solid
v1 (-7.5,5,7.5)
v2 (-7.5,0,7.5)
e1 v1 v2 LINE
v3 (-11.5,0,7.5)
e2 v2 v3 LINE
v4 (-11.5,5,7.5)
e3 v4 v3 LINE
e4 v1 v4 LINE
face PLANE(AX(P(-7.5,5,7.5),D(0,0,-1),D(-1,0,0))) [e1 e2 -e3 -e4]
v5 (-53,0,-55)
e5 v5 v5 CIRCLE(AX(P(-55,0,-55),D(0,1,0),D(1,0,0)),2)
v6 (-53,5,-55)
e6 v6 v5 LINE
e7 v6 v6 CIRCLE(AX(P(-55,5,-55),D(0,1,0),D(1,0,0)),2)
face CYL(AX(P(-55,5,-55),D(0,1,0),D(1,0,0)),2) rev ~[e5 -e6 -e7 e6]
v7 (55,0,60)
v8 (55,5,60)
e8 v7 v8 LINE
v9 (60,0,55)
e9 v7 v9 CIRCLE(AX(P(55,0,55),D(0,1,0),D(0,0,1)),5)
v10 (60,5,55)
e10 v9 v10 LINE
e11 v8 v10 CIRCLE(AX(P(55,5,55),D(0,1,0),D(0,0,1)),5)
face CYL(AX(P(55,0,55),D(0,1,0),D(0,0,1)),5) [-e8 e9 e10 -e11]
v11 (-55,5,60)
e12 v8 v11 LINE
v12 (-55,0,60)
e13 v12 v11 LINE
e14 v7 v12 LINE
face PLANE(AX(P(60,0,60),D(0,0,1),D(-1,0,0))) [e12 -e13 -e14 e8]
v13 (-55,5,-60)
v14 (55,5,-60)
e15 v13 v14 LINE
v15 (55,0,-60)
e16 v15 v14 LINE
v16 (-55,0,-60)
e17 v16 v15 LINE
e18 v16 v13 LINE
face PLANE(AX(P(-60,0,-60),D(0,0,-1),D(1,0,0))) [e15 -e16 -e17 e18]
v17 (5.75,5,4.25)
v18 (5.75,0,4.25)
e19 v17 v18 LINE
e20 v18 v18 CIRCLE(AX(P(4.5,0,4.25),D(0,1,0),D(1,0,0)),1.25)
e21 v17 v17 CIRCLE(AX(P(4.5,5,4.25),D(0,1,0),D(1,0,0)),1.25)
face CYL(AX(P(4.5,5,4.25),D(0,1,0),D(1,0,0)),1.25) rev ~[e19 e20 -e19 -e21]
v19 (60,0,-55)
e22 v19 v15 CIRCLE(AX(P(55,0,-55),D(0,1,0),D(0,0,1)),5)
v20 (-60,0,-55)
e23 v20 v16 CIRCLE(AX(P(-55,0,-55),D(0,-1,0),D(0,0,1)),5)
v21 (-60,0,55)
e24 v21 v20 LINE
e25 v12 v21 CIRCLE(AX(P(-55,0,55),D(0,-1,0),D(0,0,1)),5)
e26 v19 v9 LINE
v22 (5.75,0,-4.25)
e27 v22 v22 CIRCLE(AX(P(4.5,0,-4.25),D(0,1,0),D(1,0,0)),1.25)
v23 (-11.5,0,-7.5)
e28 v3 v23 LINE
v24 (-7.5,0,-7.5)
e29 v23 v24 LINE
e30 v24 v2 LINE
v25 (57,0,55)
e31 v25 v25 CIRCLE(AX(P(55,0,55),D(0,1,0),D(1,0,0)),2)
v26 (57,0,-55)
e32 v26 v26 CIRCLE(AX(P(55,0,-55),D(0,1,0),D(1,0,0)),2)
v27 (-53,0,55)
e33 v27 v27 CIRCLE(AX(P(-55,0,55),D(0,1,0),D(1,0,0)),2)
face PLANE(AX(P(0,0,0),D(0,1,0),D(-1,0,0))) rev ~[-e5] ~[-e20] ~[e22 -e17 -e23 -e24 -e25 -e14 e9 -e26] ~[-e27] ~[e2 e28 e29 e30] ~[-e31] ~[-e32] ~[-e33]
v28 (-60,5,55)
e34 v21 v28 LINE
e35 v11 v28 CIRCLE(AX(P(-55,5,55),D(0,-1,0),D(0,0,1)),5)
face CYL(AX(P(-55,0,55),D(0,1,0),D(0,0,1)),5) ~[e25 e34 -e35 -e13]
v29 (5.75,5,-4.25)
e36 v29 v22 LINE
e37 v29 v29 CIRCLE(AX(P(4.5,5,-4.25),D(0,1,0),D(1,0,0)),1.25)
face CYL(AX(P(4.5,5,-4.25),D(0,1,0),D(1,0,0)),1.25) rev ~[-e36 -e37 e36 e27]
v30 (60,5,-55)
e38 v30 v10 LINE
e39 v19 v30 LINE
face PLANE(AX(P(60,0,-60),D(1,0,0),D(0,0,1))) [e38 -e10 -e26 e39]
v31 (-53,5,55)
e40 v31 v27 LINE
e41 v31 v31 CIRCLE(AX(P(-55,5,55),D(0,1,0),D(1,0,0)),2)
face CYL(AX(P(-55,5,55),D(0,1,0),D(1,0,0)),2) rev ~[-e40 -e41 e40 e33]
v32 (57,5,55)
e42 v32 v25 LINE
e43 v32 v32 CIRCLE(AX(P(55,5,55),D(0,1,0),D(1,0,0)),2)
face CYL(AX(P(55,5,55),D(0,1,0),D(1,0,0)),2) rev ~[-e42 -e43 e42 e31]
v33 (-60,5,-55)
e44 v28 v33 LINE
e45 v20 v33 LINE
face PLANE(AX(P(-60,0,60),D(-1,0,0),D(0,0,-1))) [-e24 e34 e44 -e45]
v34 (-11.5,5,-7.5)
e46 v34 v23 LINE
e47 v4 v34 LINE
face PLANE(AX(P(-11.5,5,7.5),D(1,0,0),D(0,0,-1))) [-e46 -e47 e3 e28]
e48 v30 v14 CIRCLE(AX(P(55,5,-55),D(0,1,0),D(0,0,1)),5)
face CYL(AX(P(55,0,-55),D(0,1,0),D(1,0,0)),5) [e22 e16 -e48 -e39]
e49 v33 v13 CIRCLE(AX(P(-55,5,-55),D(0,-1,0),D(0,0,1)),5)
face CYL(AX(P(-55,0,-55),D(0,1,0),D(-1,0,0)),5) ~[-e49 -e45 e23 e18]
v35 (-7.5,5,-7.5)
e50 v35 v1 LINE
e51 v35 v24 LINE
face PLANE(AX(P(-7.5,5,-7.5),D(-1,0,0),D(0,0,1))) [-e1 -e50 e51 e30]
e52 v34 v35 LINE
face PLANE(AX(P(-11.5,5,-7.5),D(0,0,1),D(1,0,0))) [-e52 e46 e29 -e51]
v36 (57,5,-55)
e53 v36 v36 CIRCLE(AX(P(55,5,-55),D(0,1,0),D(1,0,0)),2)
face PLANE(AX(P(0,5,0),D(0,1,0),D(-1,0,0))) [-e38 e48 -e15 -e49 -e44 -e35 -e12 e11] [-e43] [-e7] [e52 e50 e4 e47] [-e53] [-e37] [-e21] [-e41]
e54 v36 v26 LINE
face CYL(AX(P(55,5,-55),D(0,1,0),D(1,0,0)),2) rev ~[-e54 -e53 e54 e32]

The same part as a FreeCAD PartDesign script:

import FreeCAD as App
import Part
import Sketcher

V = App.Vector
Q = App.Units.Quantity


def edges_at(feature, points):
    """Names of the edges that pass closest to the given points."""
    edges = feature.Shape.Edges
    near = lambda p: min(range(len(edges)), key=lambda i: edges[i].distToShape(Part.Vertex(*p))[0])
    return sorted({f"Edge{near(p) + 1}" for p in points})


def add_polygon(sketch, points):
    """Adds a closed chain of lines whose ends are joined by coincident constraints."""
    first, n = sketch.GeometryCount, len(points)
    for a, b in zip(points, points[1:] + points[:1]):
        sketch.addGeometry(Part.LineSegment(App.Vector(*a, 0), App.Vector(*b, 0)), False)
    for i in range(n):
        sketch.addConstraint(Sketcher.Constraint("Coincident", first + i, 2, first + (i + 1) % n, 1))

doc = App.newDocument("Part")
body = doc.addObject("PartDesign::Body", "Body")

# Sketch on XZ plane
sketch1 = body.newObject("Sketcher::SketchObject", "Sketch")
sketch1.AttachmentSupport = (doc.getObject("XZ_Plane"), [""])
sketch1.MapMode = "FlatFace"
add_polygon(sketch1, [(-60, 60), (60, 60), (60, -60), (-60, -60)])  # lines 0-3
sketch1.addConstraint(Sketcher.Constraint("Horizontal", 0))
sketch1.addConstraint(Sketcher.Constraint("Vertical", 1))
sketch1.addConstraint(Sketcher.Constraint("Horizontal", 2))
sketch1.addConstraint(Sketcher.Constraint("Vertical", 3))
sketch1.addConstraint(Sketcher.Constraint("Symmetric", 0, 2, 2, 2, -1, 1))
sketch1.addConstraint(Sketcher.Constraint("Equal", 2, 1))
sketch1.addConstraint(Sketcher.Constraint("DistanceX", 0, 1, 0, 2, Q("120 mm")))
pad1 = body.newObject("PartDesign::Pad", "Pad")
pad1.Profile = sketch1
pad1.Length = 5
pad1.Reversed = True

# Sketch on XZ plane
sketch2 = body.newObject("Sketcher::SketchObject", "Sketch001")
sketch2.AttachmentSupport = (doc.getObject("XZ_Plane"), [""])
sketch2.MapMode = "FlatFace"
sketch2.AttachmentOffset = App.Placement(V(0, 0, -5), App.Rotation())
sketch2.addGeometry(Part.Circle(V(-55, -55, 0), V(0, 0, 1), 2), False)
sketch2.addGeometry(Part.Circle(V(-55, 55, 0), V(0, 0, 1), 2), False)
sketch2.addGeometry(Part.Circle(V(55, -55, 0), V(0, 0, 1), 2), False)
sketch2.addGeometry(Part.Circle(V(55, 55, 0), V(0, 0, 1), 2), False)
sketch2.addConstraint(Sketcher.Constraint("Equal", 0, 1))
sketch2.addConstraint(Sketcher.Constraint("Equal", 1, 2))
sketch2.addConstraint(Sketcher.Constraint("Equal", 2, 3))
sketch2.addConstraint(Sketcher.Constraint("Symmetric", 1, 3, 2, 3, -1, 1))
sketch2.addConstraint(Sketcher.Constraint("Symmetric", 0, 3, 3, 3, -1, 1))
sketch2.addConstraint(Sketcher.Constraint("Symmetric", 0, 3, 2, 3, -2))
sketch2.addConstraint(Sketcher.Constraint("Diameter", 0, Q("4 mm")))
sketch2.addConstraint(Sketcher.Constraint("DistanceY", 0, 3, 1, 3, Q("110 mm")))
sketch2.addConstraint(Sketcher.Constraint("DistanceX", 0, 3, 2, 3, Q("110 mm")))
pocket1 = body.newObject("PartDesign::Pocket", "Pocket")
pocket1.Profile = sketch2
pocket1.Length = 5
pocket1.Reversed = True
doc.recompute()

fillet = body.newObject("PartDesign::Fillet", "Fillet")
fillet.Base = (pocket1, edges_at(pocket1, [
    (60, 2.5, -60),
    (60, 2.5, 60),
    (-60, 2.5, -60),
    (-60, 2.5, 60),
]))
fillet.Radius = 5

# Sketch on XZ plane
sketch3 = body.newObject("Sketcher::SketchObject", "Sketch002")
sketch3.AttachmentSupport = (doc.getObject("XZ_Plane"), [""])
sketch3.MapMode = "FlatFace"
sketch3.AttachmentOffset = App.Placement(V(0, 0, -5), App.Rotation())
add_polygon(sketch3, [(-7.5, -7.5), (-11.5, -7.5), (-11.5, 7.5), (-7.5, 7.5)])  # lines 0-3
sketch3.addGeometry(Part.Circle(V(4.5, -4.2, 0), V(0, 0, 1), 1.2), False)  # 4
sketch3.addGeometry(Part.Circle(V(4.5, 4.2, 0), V(0, 0, 1), 1.2), False)  # 5
sketch3.addConstraint(Sketcher.Constraint("Horizontal", 0))
sketch3.addConstraint(Sketcher.Constraint("Vertical", 1))
sketch3.addConstraint(Sketcher.Constraint("Horizontal", 2))
sketch3.addConstraint(Sketcher.Constraint("Vertical", 3))
sketch3.addConstraint(Sketcher.Constraint("Equal", 4, 5))
sketch3.addConstraint(Sketcher.Constraint("Symmetric", 4, 3, 5, 3, -1))
sketch3.addConstraint(Sketcher.Constraint("Diameter", 4, Q("2.5 mm")))
sketch3.addConstraint(Sketcher.Constraint("DistanceX", 0, 2, 0, 1, Q("4 mm")))
sketch3.addConstraint(Sketcher.Constraint("DistanceY", 1, 1, 1, 2, Q("15 mm")))
sketch3.addConstraint(Sketcher.Constraint("DistanceY", 4, 3, 5, 3, Q("8.5 mm")))
sketch3.addConstraint(Sketcher.Constraint("DistanceX", 0, 2, 4, 3, Q("16 mm")))
sketch3.addConstraint(Sketcher.Constraint("DistanceX", -1, 1, 4, 3, Q("4.5 mm")))
sketch3.addConstraint(Sketcher.Constraint("DistanceY", 0, 2, -1, 1, Q("7.5 mm")))
pocket2 = body.newObject("PartDesign::Pocket", "Pocket001")
pocket2.Profile = sketch3
pocket2.Length = 10
pocket2.Reversed = True

doc.recompute()
